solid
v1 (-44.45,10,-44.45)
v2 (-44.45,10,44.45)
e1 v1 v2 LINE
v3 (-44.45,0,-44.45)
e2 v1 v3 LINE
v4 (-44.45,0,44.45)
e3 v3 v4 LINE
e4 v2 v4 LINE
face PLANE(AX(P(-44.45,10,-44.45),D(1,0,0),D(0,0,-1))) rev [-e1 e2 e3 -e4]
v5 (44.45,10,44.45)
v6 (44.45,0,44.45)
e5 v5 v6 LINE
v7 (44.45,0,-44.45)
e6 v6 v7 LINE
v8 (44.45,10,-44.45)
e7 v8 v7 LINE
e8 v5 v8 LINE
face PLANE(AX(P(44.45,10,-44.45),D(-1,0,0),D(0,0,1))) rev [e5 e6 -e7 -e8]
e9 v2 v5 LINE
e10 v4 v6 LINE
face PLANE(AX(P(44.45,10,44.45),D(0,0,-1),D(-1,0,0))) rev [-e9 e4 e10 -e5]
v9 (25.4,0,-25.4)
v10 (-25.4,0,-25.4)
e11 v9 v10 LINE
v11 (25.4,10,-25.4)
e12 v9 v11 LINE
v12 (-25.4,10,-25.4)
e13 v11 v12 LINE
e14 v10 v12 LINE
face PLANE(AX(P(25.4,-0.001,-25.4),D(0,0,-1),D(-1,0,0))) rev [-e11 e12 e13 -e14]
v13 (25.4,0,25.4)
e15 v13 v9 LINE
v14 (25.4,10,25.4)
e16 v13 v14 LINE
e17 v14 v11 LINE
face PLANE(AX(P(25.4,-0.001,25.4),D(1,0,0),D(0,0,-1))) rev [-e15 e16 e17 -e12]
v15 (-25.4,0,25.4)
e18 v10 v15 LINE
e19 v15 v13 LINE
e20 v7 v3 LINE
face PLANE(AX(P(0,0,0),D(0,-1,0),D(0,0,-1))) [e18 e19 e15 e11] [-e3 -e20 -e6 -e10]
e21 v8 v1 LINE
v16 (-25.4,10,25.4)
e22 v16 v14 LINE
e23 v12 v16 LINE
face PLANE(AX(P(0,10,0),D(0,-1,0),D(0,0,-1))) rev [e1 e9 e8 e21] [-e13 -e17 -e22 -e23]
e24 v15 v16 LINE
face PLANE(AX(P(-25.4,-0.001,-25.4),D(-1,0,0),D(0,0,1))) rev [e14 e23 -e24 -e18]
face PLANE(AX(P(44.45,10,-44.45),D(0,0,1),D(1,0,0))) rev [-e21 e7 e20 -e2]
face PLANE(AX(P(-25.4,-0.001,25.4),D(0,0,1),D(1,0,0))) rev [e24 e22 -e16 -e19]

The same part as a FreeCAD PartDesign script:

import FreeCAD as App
import Part
import Sketcher

V = App.Vector
Q = App.Units.Quantity


def add_polygon(sketch, points):
    """Adds a closed chain of lines whose ends are joined by coincident constraints."""
    first, n = sketch.GeometryCount, len(points)
    for a, b in zip(points, points[1:] + points[:1]):
        sketch.addGeometry(Part.LineSegment(App.Vector(*a, 0), App.Vector(*b, 0)), False)
    for i in range(n):
        sketch.addConstraint(Sketcher.Constraint("Coincident", first + i, 2, first + (i + 1) % n, 1))

doc = App.newDocument("Part")
body = doc.addObject("PartDesign::Body", "Body")

sketch1 = body.newObject("Sketcher::SketchObject", "Sketch")
sketch1.AttachmentSupport = (doc.getObject("XZ_Plane"), [""])
sketch1.MapMode = "FlatFace"
add_polygon(sketch1, [(-44, -44), (-44, 44), (44, 44), (44, -44)])
sketch1.addConstraint(Sketcher.Constraint("Vertical", 0))
sketch1.addConstraint(Sketcher.Constraint("Horizontal", 1))
sketch1.addConstraint(Sketcher.Constraint("Vertical", 2))
sketch1.addConstraint(Sketcher.Constraint("Horizontal", 3))
sketch1.addConstraint(Sketcher.Constraint("Symmetric", 0, 2, 2, 2, -1, 1))
sketch1.addConstraint(Sketcher.Constraint("Equal", 3, 0))
sketch1.addConstraint(Sketcher.Constraint("DistanceX", 1, 1, 1, 2, Q("3.5 in")))
pad1 = body.newObject("PartDesign::Pad", "Pad")
pad1.Profile = sketch1
pad1.Length = 10
pad1.Reversed = True

sketch2 = body.newObject("Sketcher::SketchObject", "Sketch001")
sketch2.AttachmentSupport = (doc.getObject("XZ_Plane"), [""])
sketch2.MapMode = "FlatFace"
sketch2.AttachmentOffset = App.Placement(V(0, 0, -10), App.Rotation())
add_polygon(sketch2, [(-25, -25), (-25, 25), (25, 25), (25, -25)])
sketch2.addConstraint(Sketcher.Constraint("Vertical", 0))
sketch2.addConstraint(Sketcher.Constraint("Horizontal", 1))
sketch2.addConstraint(Sketcher.Constraint("Vertical", 2))
sketch2.addConstraint(Sketcher.Constraint("Horizontal", 3))
sketch2.addConstraint(Sketcher.Constraint("Symmetric", 0, 2, 2, 2, -1, 1))
sketch2.addConstraint(Sketcher.Constraint("Equal", 3, 0))
sketch2.addConstraint(Sketcher.Constraint("DistanceX", 1, 1, 1, 2, Q("2 in")))
pocket1 = body.newObject("PartDesign::Pocket", "Pocket")
pocket1.Profile = sketch2
pocket1.Type = "UpToFirst"
pocket1.Reversed = True

doc.recompute()
